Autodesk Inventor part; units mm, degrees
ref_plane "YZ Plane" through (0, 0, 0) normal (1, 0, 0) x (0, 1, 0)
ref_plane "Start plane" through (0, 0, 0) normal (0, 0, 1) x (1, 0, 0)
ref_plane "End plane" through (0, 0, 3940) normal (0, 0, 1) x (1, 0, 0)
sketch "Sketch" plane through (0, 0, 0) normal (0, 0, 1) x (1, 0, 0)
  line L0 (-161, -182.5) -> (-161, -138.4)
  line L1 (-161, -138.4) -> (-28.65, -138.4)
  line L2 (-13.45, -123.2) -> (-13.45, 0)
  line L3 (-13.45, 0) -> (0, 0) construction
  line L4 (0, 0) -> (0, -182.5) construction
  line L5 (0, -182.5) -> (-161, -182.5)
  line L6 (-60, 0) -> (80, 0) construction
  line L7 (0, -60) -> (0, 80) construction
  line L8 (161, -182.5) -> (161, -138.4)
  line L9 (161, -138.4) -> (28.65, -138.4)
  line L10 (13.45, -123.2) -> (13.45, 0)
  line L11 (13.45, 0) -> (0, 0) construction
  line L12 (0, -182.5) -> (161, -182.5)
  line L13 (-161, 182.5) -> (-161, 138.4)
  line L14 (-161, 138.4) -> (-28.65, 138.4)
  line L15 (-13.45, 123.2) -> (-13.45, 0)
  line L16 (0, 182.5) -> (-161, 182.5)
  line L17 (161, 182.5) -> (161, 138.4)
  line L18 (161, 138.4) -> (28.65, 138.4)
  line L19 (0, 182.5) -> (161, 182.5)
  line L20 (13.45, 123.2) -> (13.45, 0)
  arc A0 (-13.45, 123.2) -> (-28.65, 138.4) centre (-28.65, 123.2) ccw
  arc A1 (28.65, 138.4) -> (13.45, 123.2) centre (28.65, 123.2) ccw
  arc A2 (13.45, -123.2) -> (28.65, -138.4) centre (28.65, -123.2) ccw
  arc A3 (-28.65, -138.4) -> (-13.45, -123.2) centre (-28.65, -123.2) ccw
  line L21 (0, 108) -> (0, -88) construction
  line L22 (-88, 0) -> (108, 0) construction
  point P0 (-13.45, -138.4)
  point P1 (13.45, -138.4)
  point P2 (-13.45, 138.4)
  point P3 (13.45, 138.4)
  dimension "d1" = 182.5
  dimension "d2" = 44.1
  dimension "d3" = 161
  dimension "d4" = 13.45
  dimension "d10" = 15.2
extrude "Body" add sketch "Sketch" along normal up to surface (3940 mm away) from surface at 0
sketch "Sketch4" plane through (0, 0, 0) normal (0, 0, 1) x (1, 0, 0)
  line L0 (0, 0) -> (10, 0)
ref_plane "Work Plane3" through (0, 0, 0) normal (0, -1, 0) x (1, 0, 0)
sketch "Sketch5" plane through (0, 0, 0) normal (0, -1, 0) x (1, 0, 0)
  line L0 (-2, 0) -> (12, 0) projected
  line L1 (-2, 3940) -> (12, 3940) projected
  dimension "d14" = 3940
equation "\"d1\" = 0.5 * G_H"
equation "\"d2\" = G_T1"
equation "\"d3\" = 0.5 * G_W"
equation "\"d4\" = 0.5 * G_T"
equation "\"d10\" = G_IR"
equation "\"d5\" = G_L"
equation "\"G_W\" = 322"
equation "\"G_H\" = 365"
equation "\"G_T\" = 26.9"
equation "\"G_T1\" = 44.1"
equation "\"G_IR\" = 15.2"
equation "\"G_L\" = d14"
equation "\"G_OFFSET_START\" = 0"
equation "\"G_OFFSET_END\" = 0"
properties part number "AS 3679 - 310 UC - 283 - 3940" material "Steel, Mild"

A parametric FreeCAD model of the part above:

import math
import FreeCAD as App
import Part
import Sketcher
from FreeCAD import Vector

doc = App.newDocument("Part")
params = doc.addObject("Spreadsheet::Sheet", "Params")
for row, (alias, value) in enumerate([
    ("sketch1_radius", "15.2 mm"),
    ("sketch1_height", "44.1 mm"),
    ("pad1_length", "3940 mm"),
], start=1):
    params.set(f"A{row}", alias)
    params.set(f"B{row}", "=" + value)
    params.setAlias(f"B{row}", alias)

body = doc.addObject("PartDesign::Body", "Body")

# Sketch on XY plane
sketch1 = body.newObject("Sketcher::SketchObject", "Sketch")
sketch1.AttachmentSupport = (doc.getObject("XY_Plane"), [""])
sketch1.MapMode = "FlatFace"
sketch1.addGeometry(Part.LineSegment(Vector(-161, -138, 0), Vector(-161, -182, 0)), False)
sketch1.addGeometry(Part.LineSegment(Vector(-161, -182, 0), Vector(161, -182, 0)), False)
sketch1.addGeometry(Part.LineSegment(Vector(161, -182, 0), Vector(161, -138, 0)), False)
sketch1.addGeometry(Part.LineSegment(Vector(161, -138, 0), Vector(29, -138, 0)), False)
sketch1.addGeometry(Part.ArcOfCircle(Part.Circle(Vector(29, -123, 0), Vector(0, 0, 1), 15), math.radians(180), math.radians(270)), False)
sketch1.addGeometry(Part.LineSegment(Vector(13, -123, 0), Vector(13, 123, 0)), False)
sketch1.addGeometry(Part.ArcOfCircle(Part.Circle(Vector(29, 123, 0), Vector(0, 0, 1), 15), math.radians(90), math.radians(180)), False)
sketch1.addGeometry(Part.LineSegment(Vector(29, 138, 0), Vector(161, 138, 0)), False)
sketch1.addGeometry(Part.LineSegment(Vector(161, 138, 0), Vector(161, 182, 0)), False)
sketch1.addGeometry(Part.LineSegment(Vector(161, 182, 0), Vector(-161, 182, 0)), False)
sketch1.addGeometry(Part.LineSegment(Vector(-161, 182, 0), Vector(-161, 138, 0)), False)
sketch1.addGeometry(Part.LineSegment(Vector(-161, 138, 0), Vector(-29, 138, 0)), False)
sketch1.addGeometry(Part.ArcOfCircle(Part.Circle(Vector(-29, 123, 0), Vector(0, 0, 1), 15), math.radians(0), math.radians(90)), False)
sketch1.addGeometry(Part.LineSegment(Vector(-13, 123, 0), Vector(-13, -123, 0)), False)
sketch1.addGeometry(Part.ArcOfCircle(Part.Circle(Vector(-29, -123, 0), Vector(0, 0, 1), 15), math.radians(-90), math.radians(0)), False)
sketch1.addGeometry(Part.LineSegment(Vector(-29, -138, 0), Vector(-161, -138, 0)), False)
sketch1.addConstraint(Sketcher.Constraint("Coincident", 0, 2, 1, 1))
sketch1.addConstraint(Sketcher.Constraint("Coincident", 1, 2, 2, 1))
sketch1.addConstraint(Sketcher.Constraint("Coincident", 2, 2, 3, 1))
sketch1.addConstraint(Sketcher.Constraint("Tangent", 3, 2, 4, 2))
sketch1.addConstraint(Sketcher.Constraint("Tangent", 4, 1, 5, 1))
sketch1.addConstraint(Sketcher.Constraint("Tangent", 5, 2, 6, 2))
sketch1.addConstraint(Sketcher.Constraint("Tangent", 6, 1, 7, 1))
sketch1.addConstraint(Sketcher.Constraint("Coincident", 7, 2, 8, 1))
sketch1.addConstraint(Sketcher.Constraint("Coincident", 8, 2, 9, 1))
sketch1.addConstraint(Sketcher.Constraint("Coincident", 9, 2, 10, 1))
sketch1.addConstraint(Sketcher.Constraint("Coincident", 10, 2, 11, 1))
sketch1.addConstraint(Sketcher.Constraint("Tangent", 11, 2, 12, 2))
sketch1.addConstraint(Sketcher.Constraint("Tangent", 12, 1, 13, 1))
sketch1.addConstraint(Sketcher.Constraint("Tangent", 13, 2, 14, 2))
sketch1.addConstraint(Sketcher.Constraint("Tangent", 14, 1, 15, 1))
sketch1.addConstraint(Sketcher.Constraint("Coincident", 15, 2, 0, 1))
sketch1.addConstraint(Sketcher.Constraint("Vertical", 0))
sketch1.addConstraint(Sketcher.Constraint("Horizontal", 1))
sketch1.addConstraint(Sketcher.Constraint("Vertical", 2))
sketch1.addConstraint(Sketcher.Constraint("Horizontal", 3))
sketch1.addConstraint(Sketcher.Constraint("Vertical", 5))
sketch1.addConstraint(Sketcher.Constraint("Horizontal", 7))
sketch1.addConstraint(Sketcher.Constraint("Vertical", 8))
sketch1.addConstraint(Sketcher.Constraint("Horizontal", 9))
sketch1.addConstraint(Sketcher.Constraint("Vertical", 10))
sketch1.addConstraint(Sketcher.Constraint("Horizontal", 11))
sketch1.addConstraint(Sketcher.Constraint("Vertical", 13))
sketch1.addConstraint(Sketcher.Constraint("Horizontal", 15))
sketch1.addConstraint(Sketcher.Constraint("Equal", 4, 6))
sketch1.addConstraint(Sketcher.Constraint("Equal", 6, 12))
sketch1.addConstraint(Sketcher.Constraint("Equal", 12, 14))
sketch1.addConstraint(Sketcher.Constraint("Symmetric", 4, 3, 12, 3, -1, 1))
sketch1.addConstraint(Sketcher.Constraint("Symmetric", 0, 2, 8, 2, -1, 1))
sketch1.addConstraint(Sketcher.Constraint("Symmetric", 7, 2, 10, 2, -2))
sketch1.addConstraint(Sketcher.Constraint("Symmetric", 2, 2, 15, 2, -2))
sketch1.addConstraint(Sketcher.Constraint("Radius", 4, 15.2))
sketch1.addConstraint(Sketcher.Constraint("DistanceY", 0, 2, 0, 1, 44.1))
sketch1.addConstraint(Sketcher.Constraint("DistanceX", 0, 2, -1, 1, 161.0))
sketch1.addConstraint(Sketcher.Constraint("DistanceY", 0, 2, -1, 1, 182.5))
sketch1.addConstraint(Sketcher.Constraint("DistanceX", -1, 1, 4, 1, 13.45))
sketch1.setExpression("Constraints[35]", "Params.sketch1_radius")
sketch1.setExpression("Constraints[36]", "Params.sketch1_height")
pad1 = body.newObject("PartDesign::Pad", "Pad")
pad1.Profile = sketch1
pad1.setExpression("Length", "Params.pad1_length")

doc.recompute()
